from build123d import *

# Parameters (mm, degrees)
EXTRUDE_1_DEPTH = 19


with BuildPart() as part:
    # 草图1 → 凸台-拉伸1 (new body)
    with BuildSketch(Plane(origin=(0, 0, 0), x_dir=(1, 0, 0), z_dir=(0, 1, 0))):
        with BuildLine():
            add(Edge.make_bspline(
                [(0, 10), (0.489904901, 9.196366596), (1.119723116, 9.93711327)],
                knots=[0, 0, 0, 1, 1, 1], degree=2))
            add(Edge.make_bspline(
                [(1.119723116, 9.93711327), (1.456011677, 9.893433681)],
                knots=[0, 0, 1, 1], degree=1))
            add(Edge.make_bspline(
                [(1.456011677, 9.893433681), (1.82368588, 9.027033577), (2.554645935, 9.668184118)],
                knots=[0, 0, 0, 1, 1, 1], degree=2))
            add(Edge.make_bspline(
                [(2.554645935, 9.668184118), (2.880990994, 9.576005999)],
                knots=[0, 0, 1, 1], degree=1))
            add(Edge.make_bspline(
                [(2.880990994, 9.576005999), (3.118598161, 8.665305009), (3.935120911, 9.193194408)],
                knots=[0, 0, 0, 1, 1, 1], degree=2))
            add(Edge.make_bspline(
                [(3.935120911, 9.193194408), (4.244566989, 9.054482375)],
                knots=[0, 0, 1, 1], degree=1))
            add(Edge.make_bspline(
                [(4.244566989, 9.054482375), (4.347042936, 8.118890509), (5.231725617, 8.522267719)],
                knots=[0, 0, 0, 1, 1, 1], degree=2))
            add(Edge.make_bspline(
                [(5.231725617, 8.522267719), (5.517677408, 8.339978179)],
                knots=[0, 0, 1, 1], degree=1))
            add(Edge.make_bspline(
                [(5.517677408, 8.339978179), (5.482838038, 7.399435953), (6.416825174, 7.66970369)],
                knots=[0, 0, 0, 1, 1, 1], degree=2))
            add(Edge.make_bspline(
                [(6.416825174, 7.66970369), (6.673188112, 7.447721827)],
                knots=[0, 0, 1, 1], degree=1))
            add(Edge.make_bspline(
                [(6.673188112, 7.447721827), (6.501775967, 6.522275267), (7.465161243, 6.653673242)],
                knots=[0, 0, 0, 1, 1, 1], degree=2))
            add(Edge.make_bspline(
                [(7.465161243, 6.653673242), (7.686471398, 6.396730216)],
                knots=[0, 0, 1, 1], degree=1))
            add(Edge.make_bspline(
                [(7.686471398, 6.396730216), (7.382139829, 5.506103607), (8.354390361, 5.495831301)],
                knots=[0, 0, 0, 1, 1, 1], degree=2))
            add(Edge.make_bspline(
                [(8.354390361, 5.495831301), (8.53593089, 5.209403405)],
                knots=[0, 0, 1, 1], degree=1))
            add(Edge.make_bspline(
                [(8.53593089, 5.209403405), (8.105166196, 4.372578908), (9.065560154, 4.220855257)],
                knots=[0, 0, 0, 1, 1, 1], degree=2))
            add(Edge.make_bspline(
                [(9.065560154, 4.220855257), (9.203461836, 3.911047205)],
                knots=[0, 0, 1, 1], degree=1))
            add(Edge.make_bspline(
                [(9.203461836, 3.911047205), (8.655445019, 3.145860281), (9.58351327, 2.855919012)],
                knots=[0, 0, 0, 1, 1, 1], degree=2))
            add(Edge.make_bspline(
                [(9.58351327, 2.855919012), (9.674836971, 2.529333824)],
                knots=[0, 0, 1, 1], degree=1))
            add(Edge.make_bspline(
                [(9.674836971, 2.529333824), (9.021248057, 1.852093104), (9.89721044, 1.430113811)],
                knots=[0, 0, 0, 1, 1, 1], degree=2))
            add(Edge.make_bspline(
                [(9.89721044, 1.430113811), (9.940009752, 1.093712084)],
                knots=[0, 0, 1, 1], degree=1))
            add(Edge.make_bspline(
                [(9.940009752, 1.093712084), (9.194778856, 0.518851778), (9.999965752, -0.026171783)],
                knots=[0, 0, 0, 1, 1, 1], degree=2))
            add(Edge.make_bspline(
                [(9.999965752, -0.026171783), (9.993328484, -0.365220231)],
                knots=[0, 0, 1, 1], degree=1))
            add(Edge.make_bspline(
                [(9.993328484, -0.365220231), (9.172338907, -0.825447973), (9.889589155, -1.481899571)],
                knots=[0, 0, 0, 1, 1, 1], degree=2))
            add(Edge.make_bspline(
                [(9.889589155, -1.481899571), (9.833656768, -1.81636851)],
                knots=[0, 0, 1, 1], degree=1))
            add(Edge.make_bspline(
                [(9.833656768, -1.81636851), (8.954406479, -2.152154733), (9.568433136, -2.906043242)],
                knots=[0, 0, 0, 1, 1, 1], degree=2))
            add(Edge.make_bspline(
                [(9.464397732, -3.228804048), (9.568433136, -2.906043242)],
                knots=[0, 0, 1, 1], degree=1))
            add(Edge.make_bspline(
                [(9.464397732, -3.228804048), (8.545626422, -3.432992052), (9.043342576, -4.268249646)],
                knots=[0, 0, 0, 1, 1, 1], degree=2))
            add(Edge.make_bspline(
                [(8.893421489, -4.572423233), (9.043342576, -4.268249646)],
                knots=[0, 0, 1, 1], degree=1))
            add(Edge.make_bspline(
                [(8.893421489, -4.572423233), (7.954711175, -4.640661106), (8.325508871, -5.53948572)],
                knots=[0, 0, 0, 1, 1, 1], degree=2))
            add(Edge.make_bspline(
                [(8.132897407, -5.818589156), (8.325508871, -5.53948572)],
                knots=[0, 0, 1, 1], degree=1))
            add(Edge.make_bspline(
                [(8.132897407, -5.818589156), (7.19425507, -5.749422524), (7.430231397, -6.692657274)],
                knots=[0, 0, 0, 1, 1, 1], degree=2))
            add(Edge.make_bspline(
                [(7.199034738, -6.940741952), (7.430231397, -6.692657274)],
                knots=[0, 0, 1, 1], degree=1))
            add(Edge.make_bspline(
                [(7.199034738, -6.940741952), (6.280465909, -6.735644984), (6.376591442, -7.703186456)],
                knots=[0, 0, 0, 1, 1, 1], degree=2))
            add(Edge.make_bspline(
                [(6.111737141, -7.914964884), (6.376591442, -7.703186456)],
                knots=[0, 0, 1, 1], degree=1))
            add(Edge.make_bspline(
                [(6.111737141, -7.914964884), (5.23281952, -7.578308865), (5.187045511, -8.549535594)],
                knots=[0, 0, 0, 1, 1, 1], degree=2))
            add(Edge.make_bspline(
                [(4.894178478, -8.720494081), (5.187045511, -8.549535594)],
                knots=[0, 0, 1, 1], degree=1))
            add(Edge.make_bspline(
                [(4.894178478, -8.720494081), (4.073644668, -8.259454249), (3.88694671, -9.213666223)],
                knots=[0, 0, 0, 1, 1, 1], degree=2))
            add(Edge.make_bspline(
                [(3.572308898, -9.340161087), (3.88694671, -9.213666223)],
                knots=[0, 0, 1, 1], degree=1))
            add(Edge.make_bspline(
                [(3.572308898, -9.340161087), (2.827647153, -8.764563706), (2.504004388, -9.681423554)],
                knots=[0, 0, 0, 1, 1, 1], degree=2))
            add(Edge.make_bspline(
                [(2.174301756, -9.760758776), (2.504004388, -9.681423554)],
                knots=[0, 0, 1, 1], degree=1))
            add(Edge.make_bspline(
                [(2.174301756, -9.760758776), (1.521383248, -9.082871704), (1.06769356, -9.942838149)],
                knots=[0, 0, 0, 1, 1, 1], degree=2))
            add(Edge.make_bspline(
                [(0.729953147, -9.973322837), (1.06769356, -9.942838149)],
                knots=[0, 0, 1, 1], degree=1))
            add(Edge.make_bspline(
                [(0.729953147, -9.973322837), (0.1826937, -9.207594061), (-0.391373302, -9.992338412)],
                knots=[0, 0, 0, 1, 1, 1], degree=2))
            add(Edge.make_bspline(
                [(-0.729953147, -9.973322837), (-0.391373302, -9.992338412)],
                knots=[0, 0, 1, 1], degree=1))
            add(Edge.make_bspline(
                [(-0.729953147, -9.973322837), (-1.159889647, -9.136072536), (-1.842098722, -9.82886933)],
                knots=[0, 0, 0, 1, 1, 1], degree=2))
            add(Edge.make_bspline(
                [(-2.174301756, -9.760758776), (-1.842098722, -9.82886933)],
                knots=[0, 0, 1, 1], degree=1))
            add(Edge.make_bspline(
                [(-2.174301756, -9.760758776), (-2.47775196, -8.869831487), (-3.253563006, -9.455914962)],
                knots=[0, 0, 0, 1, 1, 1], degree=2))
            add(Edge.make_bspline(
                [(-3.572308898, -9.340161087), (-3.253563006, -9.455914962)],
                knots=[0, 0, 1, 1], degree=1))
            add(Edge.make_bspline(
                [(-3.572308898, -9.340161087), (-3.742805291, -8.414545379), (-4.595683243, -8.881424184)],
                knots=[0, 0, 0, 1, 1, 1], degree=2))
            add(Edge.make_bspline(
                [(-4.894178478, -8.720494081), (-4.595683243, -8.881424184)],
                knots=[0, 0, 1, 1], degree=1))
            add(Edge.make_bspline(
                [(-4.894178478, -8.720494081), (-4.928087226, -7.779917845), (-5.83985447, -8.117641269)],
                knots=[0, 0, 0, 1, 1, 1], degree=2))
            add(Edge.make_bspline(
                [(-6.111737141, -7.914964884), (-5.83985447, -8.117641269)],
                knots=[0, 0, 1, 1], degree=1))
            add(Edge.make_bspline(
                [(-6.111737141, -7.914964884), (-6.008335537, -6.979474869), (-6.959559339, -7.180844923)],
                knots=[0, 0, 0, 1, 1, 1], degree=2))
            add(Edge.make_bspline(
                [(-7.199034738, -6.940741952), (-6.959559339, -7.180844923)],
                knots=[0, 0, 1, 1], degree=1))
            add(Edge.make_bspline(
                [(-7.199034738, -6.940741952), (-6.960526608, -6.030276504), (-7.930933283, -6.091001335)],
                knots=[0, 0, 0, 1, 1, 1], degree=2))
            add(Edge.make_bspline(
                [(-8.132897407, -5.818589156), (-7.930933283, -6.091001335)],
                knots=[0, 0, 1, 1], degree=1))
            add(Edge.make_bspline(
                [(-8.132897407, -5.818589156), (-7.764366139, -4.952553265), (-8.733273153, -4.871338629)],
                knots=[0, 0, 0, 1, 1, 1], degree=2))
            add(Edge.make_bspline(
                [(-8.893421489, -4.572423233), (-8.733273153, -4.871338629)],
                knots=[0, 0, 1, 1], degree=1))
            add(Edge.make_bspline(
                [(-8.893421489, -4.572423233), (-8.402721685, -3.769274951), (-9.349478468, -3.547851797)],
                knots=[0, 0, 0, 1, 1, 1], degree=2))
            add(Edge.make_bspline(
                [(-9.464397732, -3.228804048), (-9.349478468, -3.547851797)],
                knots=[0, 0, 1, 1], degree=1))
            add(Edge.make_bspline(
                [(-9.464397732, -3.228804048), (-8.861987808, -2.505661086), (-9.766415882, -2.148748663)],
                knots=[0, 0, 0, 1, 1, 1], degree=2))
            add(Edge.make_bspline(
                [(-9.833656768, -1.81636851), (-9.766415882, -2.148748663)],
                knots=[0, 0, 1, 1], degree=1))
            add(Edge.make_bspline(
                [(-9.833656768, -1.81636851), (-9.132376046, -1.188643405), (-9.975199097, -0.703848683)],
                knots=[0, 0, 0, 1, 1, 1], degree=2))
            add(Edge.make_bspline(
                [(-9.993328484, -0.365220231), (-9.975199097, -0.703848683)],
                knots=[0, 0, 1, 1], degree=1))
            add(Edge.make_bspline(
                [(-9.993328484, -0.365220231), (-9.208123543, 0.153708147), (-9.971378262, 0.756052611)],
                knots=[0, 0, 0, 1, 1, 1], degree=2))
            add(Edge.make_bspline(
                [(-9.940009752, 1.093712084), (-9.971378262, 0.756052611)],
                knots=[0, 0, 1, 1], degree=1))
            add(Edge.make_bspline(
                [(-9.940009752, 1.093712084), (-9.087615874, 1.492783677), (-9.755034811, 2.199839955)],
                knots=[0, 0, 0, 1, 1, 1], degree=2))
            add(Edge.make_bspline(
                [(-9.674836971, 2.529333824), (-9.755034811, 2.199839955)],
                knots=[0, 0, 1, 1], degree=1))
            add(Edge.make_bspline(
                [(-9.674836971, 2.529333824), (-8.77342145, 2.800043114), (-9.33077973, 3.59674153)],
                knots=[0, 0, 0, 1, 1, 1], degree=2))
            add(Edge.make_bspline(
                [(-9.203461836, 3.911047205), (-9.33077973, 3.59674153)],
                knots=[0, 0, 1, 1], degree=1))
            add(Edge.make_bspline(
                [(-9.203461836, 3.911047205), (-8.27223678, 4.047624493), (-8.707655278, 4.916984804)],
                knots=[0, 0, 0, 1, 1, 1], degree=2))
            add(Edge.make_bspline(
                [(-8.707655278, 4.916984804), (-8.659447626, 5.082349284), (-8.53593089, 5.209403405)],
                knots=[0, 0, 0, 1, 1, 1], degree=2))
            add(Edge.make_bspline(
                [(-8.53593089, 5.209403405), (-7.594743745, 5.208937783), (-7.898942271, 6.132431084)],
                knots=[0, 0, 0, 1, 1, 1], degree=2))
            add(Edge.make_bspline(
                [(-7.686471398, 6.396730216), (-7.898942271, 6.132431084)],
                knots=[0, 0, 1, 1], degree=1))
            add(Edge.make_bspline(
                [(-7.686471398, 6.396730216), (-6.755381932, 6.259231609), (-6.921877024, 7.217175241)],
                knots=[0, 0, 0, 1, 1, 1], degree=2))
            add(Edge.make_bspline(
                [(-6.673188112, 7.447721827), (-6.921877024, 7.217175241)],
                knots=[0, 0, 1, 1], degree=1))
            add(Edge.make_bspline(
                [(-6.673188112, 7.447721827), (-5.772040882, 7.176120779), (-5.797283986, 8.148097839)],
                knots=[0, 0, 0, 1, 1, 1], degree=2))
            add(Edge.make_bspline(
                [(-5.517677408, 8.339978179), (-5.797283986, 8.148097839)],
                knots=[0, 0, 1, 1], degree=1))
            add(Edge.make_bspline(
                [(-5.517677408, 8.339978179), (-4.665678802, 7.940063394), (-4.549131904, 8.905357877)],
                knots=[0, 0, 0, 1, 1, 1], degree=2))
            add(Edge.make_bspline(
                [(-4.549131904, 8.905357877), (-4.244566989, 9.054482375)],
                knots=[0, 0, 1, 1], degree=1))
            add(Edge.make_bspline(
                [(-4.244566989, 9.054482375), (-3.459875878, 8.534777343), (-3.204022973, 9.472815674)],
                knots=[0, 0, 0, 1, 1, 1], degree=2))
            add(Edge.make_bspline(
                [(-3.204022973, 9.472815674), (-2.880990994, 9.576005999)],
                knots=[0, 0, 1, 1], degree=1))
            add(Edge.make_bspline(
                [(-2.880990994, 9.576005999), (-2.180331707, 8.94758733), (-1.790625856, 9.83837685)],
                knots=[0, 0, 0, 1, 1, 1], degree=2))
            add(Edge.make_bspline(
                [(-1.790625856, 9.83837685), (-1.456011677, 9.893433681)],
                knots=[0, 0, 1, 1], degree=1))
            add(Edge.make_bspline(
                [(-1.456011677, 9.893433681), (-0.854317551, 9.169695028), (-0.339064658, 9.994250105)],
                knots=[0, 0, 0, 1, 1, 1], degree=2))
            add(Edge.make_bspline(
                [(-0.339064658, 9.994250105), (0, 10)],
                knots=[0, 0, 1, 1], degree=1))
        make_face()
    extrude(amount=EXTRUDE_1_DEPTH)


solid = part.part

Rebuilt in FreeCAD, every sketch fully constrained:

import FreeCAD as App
import Part
import Sketcher

V = App.Vector

doc = App.newDocument("Part")
body = doc.addObject("PartDesign::Body", "Body")

# Sketch on XZ plane
sketch1 = doc.addObject("Sketcher::SketchObject", "Sketch")
body.addObject(sketch1)
sketch1.AttachmentSupport = (doc.XZ_Plane, [""])
sketch1.MapMode = "FlatFace"
sketch1.addGeometry(Part.BSplineCurve([V(0, -10, 0), V(0.489905, -9.196367, 0), V(1.119723, -9.937113, 0)], [3, 3], [0, 1], False, 2, [1, 1, 1], False), False)
sketch1.addGeometry(Part.BSplineCurve([V(-0.339065, -9.99425, 0), V(0, -10, 0)], [2, 2], [0, 1], False, 1, [1, 1], False), False)
sketch1.addGeometry(Part.BSplineCurve([V(-1.456012, -9.893434, 0), V(-0.854318, -9.169695, 0), V(-0.339065, -9.99425, 0)], [3, 3], [0, 1], False, 2, [1, 1, 1], False), False)
sketch1.addGeometry(Part.BSplineCurve([V(-1.790626, -9.838377, 0), V(-1.456012, -9.893434, 0)], [2, 2], [0, 1], False, 1, [1, 1], False), False)
sketch1.addGeometry(Part.BSplineCurve([V(-2.880991, -9.576006, 0), V(-2.180332, -8.947587, 0), V(-1.790626, -9.838377, 0)], [3, 3], [0, 1], False, 2, [1, 1, 1], False), False)
sketch1.addGeometry(Part.BSplineCurve([V(-3.204023, -9.472816, 0), V(-2.880991, -9.576006, 0)], [2, 2], [0, 1], False, 1, [1, 1], False), False)
sketch1.addGeometry(Part.BSplineCurve([V(-4.244567, -9.054482, 0), V(-3.459876, -8.534777, 0), V(-3.204023, -9.472816, 0)], [3, 3], [0, 1], False, 2, [1, 1, 1], False), False)
sketch1.addGeometry(Part.BSplineCurve([V(-4.549132, -8.905358, 0), V(-4.244567, -9.054482, 0)], [2, 2], [0, 1], False, 1, [1, 1], False), False)
sketch1.addGeometry(Part.BSplineCurve([V(-5.517677, -8.339978, 0), V(-4.665679, -7.940063, 0), V(-4.549132, -8.905358, 0)], [3, 3], [0, 1], False, 2, [1, 1, 1], False), False)
sketch1.addGeometry(Part.BSplineCurve([V(-5.517677, -8.339978, 0), V(-5.797284, -8.148098, 0)], [2, 2], [0, 1], False, 1, [1, 1], False), False)
sketch1.addGeometry(Part.BSplineCurve([V(-6.673188, -7.447722, 0), V(-5.772041, -7.176121, 0), V(-5.797284, -8.148098, 0)], [3, 3], [0, 1], False, 2, [1, 1, 1], False), False)
sketch1.addGeometry(Part.BSplineCurve([V(-6.673188, -7.447722, 0), V(-6.921877, -7.217175, 0)], [2, 2], [0, 1], False, 1, [1, 1], False), False)
sketch1.addGeometry(Part.BSplineCurve([V(-7.686471, -6.39673, 0), V(-6.755382, -6.259232, 0), V(-6.921877, -7.217175, 0)], [3, 3], [0, 1], False, 2, [1, 1, 1], False), False)
sketch1.addGeometry(Part.BSplineCurve([V(-7.686471, -6.39673, 0), V(-7.898942, -6.132431, 0)], [2, 2], [0, 1], False, 1, [1, 1], False), False)
sketch1.addGeometry(Part.BSplineCurve([V(-8.535931, -5.209403, 0), V(-7.594744, -5.208938, 0), V(-7.898942, -6.132431, 0)], [3, 3], [0, 1], False, 2, [1, 1, 1], False), False)
sketch1.addGeometry(Part.BSplineCurve([V(-8.707655, -4.916985, 0), V(-8.659448, -5.082349, 0), V(-8.535931, -5.209403, 0)], [3, 3], [0, 1], False, 2, [1, 1, 1], False), False)
sketch1.addGeometry(Part.BSplineCurve([V(-9.203462, -3.911047, 0), V(-8.272237, -4.047624, 0), V(-8.707655, -4.916985, 0)], [3, 3], [0, 1], False, 2, [1, 1, 1], False), False)
sketch1.addGeometry(Part.BSplineCurve([V(-9.203462, -3.911047, 0), V(-9.33078, -3.596742, 0)], [2, 2], [0, 1], False, 1, [1, 1], False), False)
sketch1.addGeometry(Part.BSplineCurve([V(-9.674837, -2.529334, 0), V(-8.773421, -2.800043, 0), V(-9.33078, -3.596742, 0)], [3, 3], [0, 1], False, 2, [1, 1, 1], False), False)
sketch1.addGeometry(Part.BSplineCurve([V(-9.674837, -2.529334, 0), V(-9.755035, -2.19984, 0)], [2, 2], [0, 1], False, 1, [1, 1], False), False)
sketch1.addGeometry(Part.BSplineCurve([V(-9.94001, -1.093712, 0), V(-9.087616, -1.492784, 0), V(-9.755035, -2.19984, 0)], [3, 3], [0, 1], False, 2, [1, 1, 1], False), False)
sketch1.addGeometry(Part.BSplineCurve([V(-9.94001, -1.093712, 0), V(-9.971378, -0.756053, 0)], [2, 2], [0, 1], False, 1, [1, 1], False), False)
sketch1.addGeometry(Part.BSplineCurve([V(-9.993328, 0.36522, 0), V(-9.208124, -0.153708, 0), V(-9.971378, -0.756053, 0)], [3, 3], [0, 1], False, 2, [1, 1, 1], False), False)
sketch1.addGeometry(Part.BSplineCurve([V(-9.993328, 0.36522, 0), V(-9.975199, 0.703849, 0)], [2, 2], [0, 1], False, 1, [1, 1], False), False)
sketch1.addGeometry(Part.BSplineCurve([V(-9.833657, 1.816369, 0), V(-9.132376, 1.188643, 0), V(-9.975199, 0.703849, 0)], [3, 3], [0, 1], False, 2, [1, 1, 1], False), False)
sketch1.addGeometry(Part.BSplineCurve([V(-9.833657, 1.816369, 0), V(-9.766416, 2.148749, 0)], [2, 2], [0, 1], False, 1, [1, 1], False), False)
sketch1.addGeometry(Part.BSplineCurve([V(-9.464398, 3.228804, 0), V(-8.861988, 2.505661, 0), V(-9.766416, 2.148749, 0)], [3, 3], [0, 1], False, 2, [1, 1, 1], False), False)
sketch1.addGeometry(Part.BSplineCurve([V(-9.464398, 3.228804, 0), V(-9.349478, 3.547852, 0)], [2, 2], [0, 1], False, 1, [1, 1], False), False)
sketch1.addGeometry(Part.BSplineCurve([V(-8.893421, 4.572423, 0), V(-8.402722, 3.769275, 0), V(-9.349478, 3.547852, 0)], [3, 3], [0, 1], False, 2, [1, 1, 1], False), False)
sketch1.addGeometry(Part.BSplineCurve([V(-8.893421, 4.572423, 0), V(-8.733273, 4.871339, 0)], [2, 2], [0, 1], False, 1, [1, 1], False), False)
sketch1.addGeometry(Part.BSplineCurve([V(-8.132897, 5.818589, 0), V(-7.764366, 4.952553, 0), V(-8.733273, 4.871339, 0)], [3, 3], [0, 1], False, 2, [1, 1, 1], False), False)
sketch1.addGeometry(Part.BSplineCurve([V(-8.132897, 5.818589, 0), V(-7.930933, 6.091001, 0)], [2, 2], [0, 1], False, 1, [1, 1], False), False)
sketch1.addGeometry(Part.BSplineCurve([V(-7.199035, 6.940742, 0), V(-6.960527, 6.030277, 0), V(-7.930933, 6.091001, 0)], [3, 3], [0, 1], False, 2, [1, 1, 1], False), False)
sketch1.addGeometry(Part.BSplineCurve([V(-7.199035, 6.940742, 0), V(-6.959559, 7.180845, 0)], [2, 2], [0, 1], False, 1, [1, 1], False), False)
sketch1.addGeometry(Part.BSplineCurve([V(-6.111737, 7.914965, 0), V(-6.008336, 6.979475, 0), V(-6.959559, 7.180845, 0)], [3, 3], [0, 1], False, 2, [1, 1, 1], False), False)
sketch1.addGeometry(Part.BSplineCurve([V(-6.111737, 7.914965, 0), V(-5.839854, 8.117641, 0)], [2, 2], [0, 1], False, 1, [1, 1], False), False)
sketch1.addGeometry(Part.BSplineCurve([V(-4.894178, 8.720494, 0), V(-4.928087, 7.779918, 0), V(-5.839854, 8.117641, 0)], [3, 3], [0, 1], False, 2, [1, 1, 1], False), False)
sketch1.addGeometry(Part.BSplineCurve([V(-4.894178, 8.720494, 0), V(-4.595683, 8.881424, 0)], [2, 2], [0, 1], False, 1, [1, 1], False), False)
sketch1.addGeometry(Part.BSplineCurve([V(-3.572309, 9.340161, 0), V(-3.742805, 8.414545, 0), V(-4.595683, 8.881424, 0)], [3, 3], [0, 1], False, 2, [1, 1, 1], False), False)
sketch1.addGeometry(Part.BSplineCurve([V(-3.572309, 9.340161, 0), V(-3.253563, 9.455915, 0)], [2, 2], [0, 1], False, 1, [1, 1], False), False)
sketch1.addGeometry(Part.BSplineCurve([V(-2.174302, 9.760759, 0), V(-2.477752, 8.869831, 0), V(-3.253563, 9.455915, 0)], [3, 3], [0, 1], False, 2, [1, 1, 1], False), False)
sketch1.addGeometry(Part.BSplineCurve([V(-2.174302, 9.760759, 0), V(-1.842099, 9.828869, 0)], [2, 2], [0, 1], False, 1, [1, 1], False), False)
sketch1.addGeometry(Part.BSplineCurve([V(-0.729953, 9.973323, 0), V(-1.15989, 9.136073, 0), V(-1.842099, 9.828869, 0)], [3, 3], [0, 1], False, 2, [1, 1, 1], False), False)
sketch1.addGeometry(Part.BSplineCurve([V(-0.729953, 9.973323, 0), V(-0.391373, 9.992338, 0)], [2, 2], [0, 1], False, 1, [1, 1], False), False)
sketch1.addGeometry(Part.BSplineCurve([V(0.729953, 9.973323, 0), V(0.182694, 9.207594, 0), V(-0.391373, 9.992338, 0)], [3, 3], [0, 1], False, 2, [1, 1, 1], False), False)
sketch1.addGeometry(Part.BSplineCurve([V(0.729953, 9.973323, 0), V(1.067694, 9.942838, 0)], [2, 2], [0, 1], False, 1, [1, 1], False), False)
sketch1.addGeometry(Part.BSplineCurve([V(2.174302, 9.760759, 0), V(1.521383, 9.082872, 0), V(1.067694, 9.942838, 0)], [3, 3], [0, 1], False, 2, [1, 1, 1], False), False)
sketch1.addGeometry(Part.BSplineCurve([V(2.174302, 9.760759, 0), V(2.504004, 9.681424, 0)], [2, 2], [0, 1], False, 1, [1, 1], False), False)
sketch1.addGeometry(Part.BSplineCurve([V(3.572309, 9.340161, 0), V(2.827647, 8.764564, 0), V(2.504004, 9.681424, 0)], [3, 3], [0, 1], False, 2, [1, 1, 1], False), False)
sketch1.addGeometry(Part.BSplineCurve([V(3.572309, 9.340161, 0), V(3.886947, 9.213666, 0)], [2, 2], [0, 1], False, 1, [1, 1], False), False)
sketch1.addGeometry(Part.BSplineCurve([V(4.894178, 8.720494, 0), V(4.073645, 8.259454, 0), V(3.886947, 9.213666, 0)], [3, 3], [0, 1], False, 2, [1, 1, 1], False), False)
sketch1.addGeometry(Part.BSplineCurve([V(4.894178, 8.720494, 0), V(5.187046, 8.549536, 0)], [2, 2], [0, 1], False, 1, [1, 1], False), False)
sketch1.addGeometry(Part.BSplineCurve([V(6.111737, 7.914965, 0), V(5.23282, 7.578309, 0), V(5.187046, 8.549536, 0)], [3, 3], [0, 1], False, 2, [1, 1, 1], False), False)
sketch1.addGeometry(Part.BSplineCurve([V(6.111737, 7.914965, 0), V(6.376591, 7.703186, 0)], [2, 2], [0, 1], False, 1, [1, 1], False), False)
sketch1.addGeometry(Part.BSplineCurve([V(7.199035, 6.940742, 0), V(6.280466, 6.735645, 0), V(6.376591, 7.703186, 0)], [3, 3], [0, 1], False, 2, [1, 1, 1], False), False)
sketch1.addGeometry(Part.BSplineCurve([V(7.199035, 6.940742, 0), V(7.430231, 6.692657, 0)], [2, 2], [0, 1], False, 1, [1, 1], False), False)
sketch1.addGeometry(Part.BSplineCurve([V(8.132897, 5.818589, 0), V(7.194255, 5.749423, 0), V(7.430231, 6.692657, 0)], [3, 3], [0, 1], False, 2, [1, 1, 1], False), False)
sketch1.addGeometry(Part.BSplineCurve([V(8.132897, 5.818589, 0), V(8.325509, 5.539486, 0)], [2, 2], [0, 1], False, 1, [1, 1], False), False)
sketch1.addGeometry(Part.BSplineCurve([V(8.893421, 4.572423, 0), V(7.954711, 4.640661, 0), V(8.325509, 5.539486, 0)], [3, 3], [0, 1], False, 2, [1, 1, 1], False), False)
sketch1.addGeometry(Part.BSplineCurve([V(8.893421, 4.572423, 0), V(9.043343, 4.26825, 0)], [2, 2], [0, 1], False, 1, [1, 1], False), False)
sketch1.addGeometry(Part.BSplineCurve([V(9.464398, 3.228804, 0), V(8.545626, 3.432992, 0), V(9.043343, 4.26825, 0)], [3, 3], [0, 1], False, 2, [1, 1, 1], False), False)
sketch1.addGeometry(Part.BSplineCurve([V(9.464398, 3.228804, 0), V(9.568433, 2.906043, 0)], [2, 2], [0, 1], False, 1, [1, 1], False), False)
sketch1.addGeometry(Part.BSplineCurve([V(9.833657, 1.816369, 0), V(8.954406, 2.152155, 0), V(9.568433, 2.906043, 0)], [3, 3], [0, 1], False, 2, [1, 1, 1], False), False)
sketch1.addGeometry(Part.BSplineCurve([V(9.889589, 1.4819, 0), V(9.833657, 1.816369, 0)], [2, 2], [0, 1], False, 1, [1, 1], False), False)
sketch1.addGeometry(Part.BSplineCurve([V(9.993328, 0.36522, 0), V(9.172339, 0.825448, 0), V(9.889589, 1.4819, 0)], [3, 3], [0, 1], False, 2, [1, 1, 1], False), False)
sketch1.addGeometry(Part.BSplineCurve([V(9.999966, 0.026172, 0), V(9.993328, 0.36522, 0)], [2, 2], [0, 1], False, 1, [1, 1], False), False)
sketch1.addGeometry(Part.BSplineCurve([V(9.94001, -1.093712, 0), V(9.194779, -0.518852, 0), V(9.999966, 0.026172, 0)], [3, 3], [0, 1], False, 2, [1, 1, 1], False), False)
sketch1.addGeometry(Part.BSplineCurve([V(9.89721, -1.430114, 0), V(9.94001, -1.093712, 0)], [2, 2], [0, 1], False, 1, [1, 1], False), False)
sketch1.addGeometry(Part.BSplineCurve([V(9.674837, -2.529334, 0), V(9.021248, -1.852093, 0), V(9.89721, -1.430114, 0)], [3, 3], [0, 1], False, 2, [1, 1, 1], False), False)
sketch1.addGeometry(Part.BSplineCurve([V(9.583513, -2.855919, 0), V(9.674837, -2.529334, 0)], [2, 2], [0, 1], False, 1, [1, 1], False), False)
sketch1.addGeometry(Part.BSplineCurve([V(9.203462, -3.911047, 0), V(8.655445, -3.14586, 0), V(9.583513, -2.855919, 0)], [3, 3], [0, 1], False, 2, [1, 1, 1], False), False)
sketch1.addGeometry(Part.BSplineCurve([V(9.06556, -4.220855, 0), V(9.203462, -3.911047, 0)], [2, 2], [0, 1], False, 1, [1, 1], False), False)
sketch1.addGeometry(Part.BSplineCurve([V(8.535931, -5.209403, 0), V(8.105166, -4.372579, 0), V(9.06556, -4.220855, 0)], [3, 3], [0, 1], False, 2, [1, 1, 1], False), False)
sketch1.addGeometry(Part.BSplineCurve([V(8.35439, -5.495831, 0), V(8.535931, -5.209403, 0)], [2, 2], [0, 1], False, 1, [1, 1], False), False)
sketch1.addGeometry(Part.BSplineCurve([V(7.686471, -6.39673, 0), V(7.38214, -5.506104, 0), V(8.35439, -5.495831, 0)], [3, 3], [0, 1], False, 2, [1, 1, 1], False), False)
sketch1.addGeometry(Part.BSplineCurve([V(7.465161, -6.653673, 0), V(7.686471, -6.39673, 0)], [2, 2], [0, 1], False, 1, [1, 1], False), False)
sketch1.addGeometry(Part.BSplineCurve([V(6.673188, -7.447722, 0), V(6.501776, -6.522275, 0), V(7.465161, -6.653673, 0)], [3, 3], [0, 1], False, 2, [1, 1, 1], False), False)
sketch1.addGeometry(Part.BSplineCurve([V(6.416825, -7.669704, 0), V(6.673188, -7.447722, 0)], [2, 2], [0, 1], False, 1, [1, 1], False), False)
sketch1.addGeometry(Part.BSplineCurve([V(5.517677, -8.339978, 0), V(5.482838, -7.399436, 0), V(6.416825, -7.669704, 0)], [3, 3], [0, 1], False, 2, [1, 1, 1], False), False)
sketch1.addGeometry(Part.BSplineCurve([V(5.231726, -8.522268, 0), V(5.517677, -8.339978, 0)], [2, 2], [0, 1], False, 1, [1, 1], False), False)
sketch1.addGeometry(Part.BSplineCurve([V(4.244567, -9.054482, 0), V(4.347043, -8.118891, 0), V(5.231726, -8.522268, 0)], [3, 3], [0, 1], False, 2, [1, 1, 1], False), False)
sketch1.addGeometry(Part.BSplineCurve([V(3.935121, -9.193194, 0), V(4.244567, -9.054482, 0)], [2, 2], [0, 1], False, 1, [1, 1], False), False)
sketch1.addGeometry(Part.BSplineCurve([V(2.880991, -9.576006, 0), V(3.118598, -8.665305, 0), V(3.935121, -9.193194, 0)], [3, 3], [0, 1], False, 2, [1, 1, 1], False), False)
sketch1.addGeometry(Part.BSplineCurve([V(2.554646, -9.668184, 0), V(2.880991, -9.576006, 0)], [2, 2], [0, 1], False, 1, [1, 1], False), False)
sketch1.addGeometry(Part.BSplineCurve([V(1.456012, -9.893434, 0), V(1.823686, -9.027034, 0), V(2.554646, -9.668184, 0)], [3, 3], [0, 1], False, 2, [1, 1, 1], False), False)
sketch1.addGeometry(Part.BSplineCurve([V(1.119723, -9.937113, 0), V(1.456012, -9.893434, 0)], [2, 2], [0, 1], False, 1, [1, 1], False), False)
sketch1.addConstraint(Sketcher.Constraint("Block", 0))
sketch1.addConstraint(Sketcher.Constraint("Block", 1))
sketch1.addConstraint(Sketcher.Constraint("Block", 2))
sketch1.addConstraint(Sketcher.Constraint("Block", 3))
sketch1.addConstraint(Sketcher.Constraint("Block", 4))
sketch1.addConstraint(Sketcher.Constraint("Block", 5))
sketch1.addConstraint(Sketcher.Constraint("Block", 6))
sketch1.addConstraint(Sketcher.Constraint("Block", 7))
sketch1.addConstraint(Sketcher.Constraint("Block", 8))
sketch1.addConstraint(Sketcher.Constraint("Block", 9))
sketch1.addConstraint(Sketcher.Constraint("Block", 10))
sketch1.addConstraint(Sketcher.Constraint("Block", 11))
sketch1.addConstraint(Sketcher.Constraint("Block", 12))
sketch1.addConstraint(Sketcher.Constraint("Block", 13))
sketch1.addConstraint(Sketcher.Constraint("Block", 14))
sketch1.addConstraint(Sketcher.Constraint("Block", 15))
sketch1.addConstraint(Sketcher.Constraint("Block", 16))
sketch1.addConstraint(Sketcher.Constraint("Block", 17))
sketch1.addConstraint(Sketcher.Constraint("Block", 18))
sketch1.addConstraint(Sketcher.Constraint("Block", 19))
sketch1.addConstraint(Sketcher.Constraint("Block", 20))
sketch1.addConstraint(Sketcher.Constraint("Block", 21))
sketch1.addConstraint(Sketcher.Constraint("Block", 22))
sketch1.addConstraint(Sketcher.Constraint("Block", 23))
sketch1.addConstraint(Sketcher.Constraint("Block", 24))
sketch1.addConstraint(Sketcher.Constraint("Block", 25))
sketch1.addConstraint(Sketcher.Constraint("Block", 26))
sketch1.addConstraint(Sketcher.Constraint("Block", 27))
sketch1.addConstraint(Sketcher.Constraint("Block", 28))
sketch1.addConstraint(Sketcher.Constraint("Block", 29))
sketch1.addConstraint(Sketcher.Constraint("Block", 30))
sketch1.addConstraint(Sketcher.Constraint("Block", 31))
sketch1.addConstraint(Sketcher.Constraint("Block", 32))
sketch1.addConstraint(Sketcher.Constraint("Block", 33))
sketch1.addConstraint(Sketcher.Constraint("Block", 34))
sketch1.addConstraint(Sketcher.Constraint("Block", 35))
sketch1.addConstraint(Sketcher.Constraint("Block", 36))
sketch1.addConstraint(Sketcher.Constraint("Block", 37))
sketch1.addConstraint(Sketcher.Constraint("Block", 38))
sketch1.addConstraint(Sketcher.Constraint("Block", 39))
sketch1.addConstraint(Sketcher.Constraint("Block", 40))
sketch1.addConstraint(Sketcher.Constraint("Block", 41))
sketch1.addConstraint(Sketcher.Constraint("Block", 42))
sketch1.addConstraint(Sketcher.Constraint("Block", 43))
sketch1.addConstraint(Sketcher.Constraint("Block", 44))
sketch1.addConstraint(Sketcher.Constraint("Block", 45))
sketch1.addConstraint(Sketcher.Constraint("Block", 46))
sketch1.addConstraint(Sketcher.Constraint("Block", 47))
sketch1.addConstraint(Sketcher.Constraint("Block", 48))
sketch1.addConstraint(Sketcher.Constraint("Block", 49))
sketch1.addConstraint(Sketcher.Constraint("Block", 50))
sketch1.addConstraint(Sketcher.Constraint("Block", 51))
sketch1.addConstraint(Sketcher.Constraint("Block", 52))
sketch1.addConstraint(Sketcher.Constraint("Block", 53))
sketch1.addConstraint(Sketcher.Constraint("Block", 54))
sketch1.addConstraint(Sketcher.Constraint("Block", 55))
sketch1.addConstraint(Sketcher.Constraint("Block", 56))
sketch1.addConstraint(Sketcher.Constraint("Block", 57))
sketch1.addConstraint(Sketcher.Constraint("Block", 58))
sketch1.addConstraint(Sketcher.Constraint("Block", 59))
sketch1.addConstraint(Sketcher.Constraint("Block", 60))
sketch1.addConstraint(Sketcher.Constraint("Block", 61))
sketch1.addConstraint(Sketcher.Constraint("Block", 62))
sketch1.addConstraint(Sketcher.Constraint("Block", 63))
sketch1.addConstraint(Sketcher.Constraint("Block", 64))
sketch1.addConstraint(Sketcher.Constraint("Block", 65))
sketch1.addConstraint(Sketcher.Constraint("Block", 66))
sketch1.addConstraint(Sketcher.Constraint("Block", 67))
sketch1.addConstraint(Sketcher.Constraint("Block", 68))
sketch1.addConstraint(Sketcher.Constraint("Block", 69))
sketch1.addConstraint(Sketcher.Constraint("Block", 70))
sketch1.addConstraint(Sketcher.Constraint("Block", 71))
sketch1.addConstraint(Sketcher.Constraint("Block", 72))
sketch1.addConstraint(Sketcher.Constraint("Block", 73))
sketch1.addConstraint(Sketcher.Constraint("Block", 74))
sketch1.addConstraint(Sketcher.Constraint("Block", 75))
sketch1.addConstraint(Sketcher.Constraint("Block", 76))
sketch1.addConstraint(Sketcher.Constraint("Block", 77))
sketch1.addConstraint(Sketcher.Constraint("Block", 78))
sketch1.addConstraint(Sketcher.Constraint("Block", 79))
sketch1.addConstraint(Sketcher.Constraint("Block", 80))
sketch1.addConstraint(Sketcher.Constraint("Block", 81))
sketch1.addConstraint(Sketcher.Constraint("Block", 82))
sketch1.addConstraint(Sketcher.Constraint("Block", 83))
sketch1.addConstraint(Sketcher.Constraint("Block", 84))
sketch1.addConstraint(Sketcher.Constraint("Block", 85))
pad1 = doc.addObject("PartDesign::Pad", "Pad")
body.addObject(pad1)
pad1.Profile = sketch1
pad1.Length = 19
pad1.Reversed = True

doc.recompute()
